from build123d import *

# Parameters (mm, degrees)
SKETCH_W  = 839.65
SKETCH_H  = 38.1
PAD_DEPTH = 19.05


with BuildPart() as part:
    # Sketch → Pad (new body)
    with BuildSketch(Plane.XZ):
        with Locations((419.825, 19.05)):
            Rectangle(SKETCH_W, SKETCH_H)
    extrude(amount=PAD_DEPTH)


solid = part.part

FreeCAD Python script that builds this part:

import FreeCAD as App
import Part
import Sketcher
from FreeCAD import Vector
Q = App.Units.Quantity

doc = App.newDocument("Part")
body = doc.addObject("PartDesign::Body", "Body")

sketch1 = body.newObject("Sketcher::SketchObject", "Sketch")
sketch1.AttachmentSupport = (doc.getObject("XZ_Plane"), [""])
sketch1.MapMode = "FlatFace"
sketch1.addGeometry([
    Part.LineSegment(Vector(0, 38, 0), Vector(0, 0, 0)),
    Part.LineSegment(Vector(0, 0, 0), Vector(840, 0, 0)),
    Part.LineSegment(Vector(840, 0, 0), Vector(840, 38, 0)),
    Part.LineSegment(Vector(840, 38, 0), Vector(0, 38, 0)),
], False)
sketch1.addConstraint([
    Sketcher.Constraint("Coincident", 0, 2, 1, 1),
    Sketcher.Constraint("Coincident", 1, 2, 2, 1),
    Sketcher.Constraint("Coincident", 2, 2, 3, 1),
    Sketcher.Constraint("Coincident", 3, 2, 0, 1),
    Sketcher.Constraint("Vertical", 0),
    Sketcher.Constraint("Horizontal", 1),
    Sketcher.Constraint("Vertical", 2),
    Sketcher.Constraint("Horizontal", 3),
    Sketcher.Constraint("Coincident", 0, 2, -1, 1),
    Sketcher.Constraint("DistanceY", 0, 2, 0, 1, Q("1.5 in")),
    Sketcher.Constraint("DistanceX", 1, 1, 1, 2, 839.65),
])
pad1 = body.newObject("PartDesign::Pad", "Pad")
pad1.Profile = sketch1
pad1.Length = Q("0.75 in")

doc.recompute()
